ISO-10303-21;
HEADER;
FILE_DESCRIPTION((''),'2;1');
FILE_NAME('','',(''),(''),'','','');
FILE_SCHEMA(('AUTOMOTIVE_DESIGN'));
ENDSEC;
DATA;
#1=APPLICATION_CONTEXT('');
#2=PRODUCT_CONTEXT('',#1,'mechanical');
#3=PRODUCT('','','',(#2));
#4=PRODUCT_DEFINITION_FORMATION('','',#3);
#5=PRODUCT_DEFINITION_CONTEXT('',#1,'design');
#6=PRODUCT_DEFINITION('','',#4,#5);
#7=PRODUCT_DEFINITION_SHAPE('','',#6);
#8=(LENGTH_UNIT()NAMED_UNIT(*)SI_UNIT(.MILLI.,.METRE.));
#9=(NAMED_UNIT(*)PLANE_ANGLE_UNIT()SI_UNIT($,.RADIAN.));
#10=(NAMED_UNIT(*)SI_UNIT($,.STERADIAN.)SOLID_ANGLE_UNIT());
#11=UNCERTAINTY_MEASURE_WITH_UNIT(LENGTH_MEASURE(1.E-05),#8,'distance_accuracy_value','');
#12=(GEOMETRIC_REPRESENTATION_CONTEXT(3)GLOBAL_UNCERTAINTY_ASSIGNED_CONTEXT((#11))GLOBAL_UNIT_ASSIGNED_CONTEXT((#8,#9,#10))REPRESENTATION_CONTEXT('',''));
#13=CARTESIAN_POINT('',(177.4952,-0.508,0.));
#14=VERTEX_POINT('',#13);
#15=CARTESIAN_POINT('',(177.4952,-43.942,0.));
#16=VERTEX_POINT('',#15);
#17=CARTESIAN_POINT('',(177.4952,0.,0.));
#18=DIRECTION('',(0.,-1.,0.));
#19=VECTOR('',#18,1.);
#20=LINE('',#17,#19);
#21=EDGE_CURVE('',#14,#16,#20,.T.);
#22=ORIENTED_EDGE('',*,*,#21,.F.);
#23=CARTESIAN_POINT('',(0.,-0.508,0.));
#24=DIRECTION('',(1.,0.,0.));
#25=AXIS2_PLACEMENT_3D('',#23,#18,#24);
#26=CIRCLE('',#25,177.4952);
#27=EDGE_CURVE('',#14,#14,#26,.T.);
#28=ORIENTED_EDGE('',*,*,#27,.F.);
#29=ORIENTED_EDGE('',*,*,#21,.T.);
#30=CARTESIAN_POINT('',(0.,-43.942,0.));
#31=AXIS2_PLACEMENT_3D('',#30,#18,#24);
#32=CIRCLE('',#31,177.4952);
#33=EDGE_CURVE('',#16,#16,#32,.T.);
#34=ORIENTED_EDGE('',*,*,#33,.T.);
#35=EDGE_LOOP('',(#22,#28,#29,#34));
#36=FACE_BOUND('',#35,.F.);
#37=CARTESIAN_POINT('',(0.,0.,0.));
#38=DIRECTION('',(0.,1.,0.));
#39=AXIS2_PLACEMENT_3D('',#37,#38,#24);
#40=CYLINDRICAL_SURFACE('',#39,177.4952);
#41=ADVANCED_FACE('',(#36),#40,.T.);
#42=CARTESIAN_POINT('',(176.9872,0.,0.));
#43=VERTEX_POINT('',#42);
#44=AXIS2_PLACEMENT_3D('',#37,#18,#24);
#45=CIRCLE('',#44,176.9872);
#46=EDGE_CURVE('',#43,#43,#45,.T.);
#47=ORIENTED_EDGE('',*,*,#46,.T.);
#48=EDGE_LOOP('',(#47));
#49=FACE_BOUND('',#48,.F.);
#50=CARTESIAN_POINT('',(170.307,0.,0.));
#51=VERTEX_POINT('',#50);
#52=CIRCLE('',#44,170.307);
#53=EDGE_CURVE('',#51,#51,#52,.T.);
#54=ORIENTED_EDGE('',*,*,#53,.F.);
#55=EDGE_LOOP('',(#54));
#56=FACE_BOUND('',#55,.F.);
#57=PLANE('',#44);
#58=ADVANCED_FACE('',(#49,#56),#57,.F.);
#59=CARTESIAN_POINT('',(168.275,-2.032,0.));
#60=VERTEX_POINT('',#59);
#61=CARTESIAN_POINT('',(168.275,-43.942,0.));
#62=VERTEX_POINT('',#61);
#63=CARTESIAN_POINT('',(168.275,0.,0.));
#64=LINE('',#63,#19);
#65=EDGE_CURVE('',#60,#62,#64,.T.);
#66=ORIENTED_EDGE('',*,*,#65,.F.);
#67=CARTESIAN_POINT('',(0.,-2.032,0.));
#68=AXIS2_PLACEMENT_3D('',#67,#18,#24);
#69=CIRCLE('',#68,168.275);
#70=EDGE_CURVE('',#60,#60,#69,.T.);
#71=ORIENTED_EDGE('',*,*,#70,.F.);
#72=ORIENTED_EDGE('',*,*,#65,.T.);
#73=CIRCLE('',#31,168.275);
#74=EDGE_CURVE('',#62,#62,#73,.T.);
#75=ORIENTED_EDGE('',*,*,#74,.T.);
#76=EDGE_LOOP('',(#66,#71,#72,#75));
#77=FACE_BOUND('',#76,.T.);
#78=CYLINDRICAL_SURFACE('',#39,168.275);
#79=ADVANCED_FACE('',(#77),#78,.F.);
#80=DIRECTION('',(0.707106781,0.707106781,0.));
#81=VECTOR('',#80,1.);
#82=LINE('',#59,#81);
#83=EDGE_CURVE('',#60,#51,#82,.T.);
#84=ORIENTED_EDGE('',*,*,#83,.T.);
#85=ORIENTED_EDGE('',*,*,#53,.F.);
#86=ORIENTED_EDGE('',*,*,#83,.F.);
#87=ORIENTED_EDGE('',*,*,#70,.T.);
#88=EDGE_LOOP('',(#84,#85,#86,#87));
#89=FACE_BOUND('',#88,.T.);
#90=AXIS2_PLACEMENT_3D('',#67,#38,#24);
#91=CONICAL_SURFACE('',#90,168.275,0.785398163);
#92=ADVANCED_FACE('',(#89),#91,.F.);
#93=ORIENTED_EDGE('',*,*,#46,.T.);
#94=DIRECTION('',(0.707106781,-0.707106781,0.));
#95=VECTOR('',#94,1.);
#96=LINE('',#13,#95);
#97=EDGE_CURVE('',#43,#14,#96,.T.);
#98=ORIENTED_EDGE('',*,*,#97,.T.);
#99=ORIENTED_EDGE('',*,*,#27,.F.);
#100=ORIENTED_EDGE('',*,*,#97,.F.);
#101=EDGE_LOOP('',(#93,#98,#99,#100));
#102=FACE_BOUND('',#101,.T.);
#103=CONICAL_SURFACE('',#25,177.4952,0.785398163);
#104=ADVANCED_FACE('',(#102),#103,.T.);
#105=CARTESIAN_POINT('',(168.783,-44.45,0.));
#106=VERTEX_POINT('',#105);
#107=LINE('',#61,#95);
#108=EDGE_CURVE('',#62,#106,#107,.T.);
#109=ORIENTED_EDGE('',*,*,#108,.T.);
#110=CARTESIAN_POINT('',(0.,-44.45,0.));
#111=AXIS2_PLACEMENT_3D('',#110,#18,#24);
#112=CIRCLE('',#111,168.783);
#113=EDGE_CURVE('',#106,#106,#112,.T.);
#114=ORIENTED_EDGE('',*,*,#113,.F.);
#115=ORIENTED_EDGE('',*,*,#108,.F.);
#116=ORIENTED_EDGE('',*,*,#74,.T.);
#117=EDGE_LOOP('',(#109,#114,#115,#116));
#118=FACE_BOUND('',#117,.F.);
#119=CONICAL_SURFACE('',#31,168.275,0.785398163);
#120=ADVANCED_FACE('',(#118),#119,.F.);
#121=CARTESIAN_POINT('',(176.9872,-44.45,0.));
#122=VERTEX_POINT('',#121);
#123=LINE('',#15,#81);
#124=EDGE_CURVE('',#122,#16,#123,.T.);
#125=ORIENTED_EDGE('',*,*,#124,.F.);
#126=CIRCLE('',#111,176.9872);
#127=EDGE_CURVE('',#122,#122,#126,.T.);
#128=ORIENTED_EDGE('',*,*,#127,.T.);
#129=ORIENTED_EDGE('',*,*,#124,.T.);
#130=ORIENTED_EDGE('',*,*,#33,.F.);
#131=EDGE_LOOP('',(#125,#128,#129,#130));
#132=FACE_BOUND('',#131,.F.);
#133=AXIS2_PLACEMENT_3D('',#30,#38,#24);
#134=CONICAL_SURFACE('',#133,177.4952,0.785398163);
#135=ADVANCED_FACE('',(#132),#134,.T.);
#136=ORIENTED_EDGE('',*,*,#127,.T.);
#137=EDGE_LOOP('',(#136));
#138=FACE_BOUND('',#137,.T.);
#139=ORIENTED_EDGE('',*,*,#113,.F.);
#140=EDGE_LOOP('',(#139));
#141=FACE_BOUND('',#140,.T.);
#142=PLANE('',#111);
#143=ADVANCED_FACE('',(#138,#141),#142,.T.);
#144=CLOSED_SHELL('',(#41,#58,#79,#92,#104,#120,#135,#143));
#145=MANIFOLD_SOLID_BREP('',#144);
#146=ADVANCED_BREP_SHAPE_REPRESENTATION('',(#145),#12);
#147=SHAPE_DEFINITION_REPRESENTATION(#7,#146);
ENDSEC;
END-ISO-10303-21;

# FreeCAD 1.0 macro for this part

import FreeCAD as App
import Part
import Sketcher
Q = App.Units.Quantity


def edges_at(feature, points):
    """Names of the edges that pass closest to the given points."""
    edges = feature.Shape.Edges
    near = lambda p: min(range(len(edges)), key=lambda i: edges[i].distToShape(Part.Vertex(*p))[0])
    return sorted({f"Edge{near(p) + 1}" for p in points})

doc = App.newDocument("Part")
params = doc.addObject("Spreadsheet::Sheet", "Params")
for row, (alias, value) in enumerate([
    ("sketch1_diameter", "13.25 in"),
    ("sketch1_diameter2", "13.976 in"),
    ("pad1_length", "1.75 in"),
    ("chamfer_size", "0.08 in"),
    ("chamfer2_size", "0.02 in"),
], start=1):
    params.set(f"A{row}", alias)
    params.set(f"B{row}", "=" + value)
    params.setAlias(f"B{row}", alias)

body = doc.addObject("PartDesign::Body", "Body")

sketch1 = body.newObject("Sketcher::SketchObject", "Sketch")
sketch1.AttachmentSupport = (doc.getObject("XZ_Plane"), [""])
sketch1.MapMode = "FlatFace"
sketch1.addGeometry([
    Part.Circle(App.Vector(0, 0, 0), App.Vector(0, 0, 1), 177),
    Part.Circle(App.Vector(0, 0, 0), App.Vector(0, 0, 1), 168),
], False)
sketch1.addConstraint([
    Sketcher.Constraint("Coincident", 0, 3, -1, 1),
    Sketcher.Constraint("Coincident", 1, 3, -1, 1),
    Sketcher.Constraint("Diameter", 1, Q("13.25 in")),
    Sketcher.Constraint("Diameter", 0, Q("13.976 in")),
])
sketch1.setExpression("Constraints[2]", "Params.sketch1_diameter")
sketch1.setExpression("Constraints[3]", "Params.sketch1_diameter2")
pad1 = body.newObject("PartDesign::Pad", "Pad")
pad1.Profile = sketch1
pad1.setExpression("Length", "Params.pad1_length")
doc.recompute()

chamfer = body.newObject("PartDesign::Chamfer", "Chamfer")
chamfer.Base = (pad1, edges_at(pad1, [(-168.275, 0, 0)]))
chamfer.setExpression("Size", "Params.chamfer_size")
doc.recompute()

chamfer2 = body.newObject("PartDesign::Chamfer", "Chamfer001")
chamfer2.Base = (chamfer, edges_at(chamfer, [(-168.275, -44.45, 0), (-177.495, -44.45, 0), (-177.495, 0, 0)]))
chamfer2.setExpression("Size", "Params.chamfer2_size")

doc.recompute()
